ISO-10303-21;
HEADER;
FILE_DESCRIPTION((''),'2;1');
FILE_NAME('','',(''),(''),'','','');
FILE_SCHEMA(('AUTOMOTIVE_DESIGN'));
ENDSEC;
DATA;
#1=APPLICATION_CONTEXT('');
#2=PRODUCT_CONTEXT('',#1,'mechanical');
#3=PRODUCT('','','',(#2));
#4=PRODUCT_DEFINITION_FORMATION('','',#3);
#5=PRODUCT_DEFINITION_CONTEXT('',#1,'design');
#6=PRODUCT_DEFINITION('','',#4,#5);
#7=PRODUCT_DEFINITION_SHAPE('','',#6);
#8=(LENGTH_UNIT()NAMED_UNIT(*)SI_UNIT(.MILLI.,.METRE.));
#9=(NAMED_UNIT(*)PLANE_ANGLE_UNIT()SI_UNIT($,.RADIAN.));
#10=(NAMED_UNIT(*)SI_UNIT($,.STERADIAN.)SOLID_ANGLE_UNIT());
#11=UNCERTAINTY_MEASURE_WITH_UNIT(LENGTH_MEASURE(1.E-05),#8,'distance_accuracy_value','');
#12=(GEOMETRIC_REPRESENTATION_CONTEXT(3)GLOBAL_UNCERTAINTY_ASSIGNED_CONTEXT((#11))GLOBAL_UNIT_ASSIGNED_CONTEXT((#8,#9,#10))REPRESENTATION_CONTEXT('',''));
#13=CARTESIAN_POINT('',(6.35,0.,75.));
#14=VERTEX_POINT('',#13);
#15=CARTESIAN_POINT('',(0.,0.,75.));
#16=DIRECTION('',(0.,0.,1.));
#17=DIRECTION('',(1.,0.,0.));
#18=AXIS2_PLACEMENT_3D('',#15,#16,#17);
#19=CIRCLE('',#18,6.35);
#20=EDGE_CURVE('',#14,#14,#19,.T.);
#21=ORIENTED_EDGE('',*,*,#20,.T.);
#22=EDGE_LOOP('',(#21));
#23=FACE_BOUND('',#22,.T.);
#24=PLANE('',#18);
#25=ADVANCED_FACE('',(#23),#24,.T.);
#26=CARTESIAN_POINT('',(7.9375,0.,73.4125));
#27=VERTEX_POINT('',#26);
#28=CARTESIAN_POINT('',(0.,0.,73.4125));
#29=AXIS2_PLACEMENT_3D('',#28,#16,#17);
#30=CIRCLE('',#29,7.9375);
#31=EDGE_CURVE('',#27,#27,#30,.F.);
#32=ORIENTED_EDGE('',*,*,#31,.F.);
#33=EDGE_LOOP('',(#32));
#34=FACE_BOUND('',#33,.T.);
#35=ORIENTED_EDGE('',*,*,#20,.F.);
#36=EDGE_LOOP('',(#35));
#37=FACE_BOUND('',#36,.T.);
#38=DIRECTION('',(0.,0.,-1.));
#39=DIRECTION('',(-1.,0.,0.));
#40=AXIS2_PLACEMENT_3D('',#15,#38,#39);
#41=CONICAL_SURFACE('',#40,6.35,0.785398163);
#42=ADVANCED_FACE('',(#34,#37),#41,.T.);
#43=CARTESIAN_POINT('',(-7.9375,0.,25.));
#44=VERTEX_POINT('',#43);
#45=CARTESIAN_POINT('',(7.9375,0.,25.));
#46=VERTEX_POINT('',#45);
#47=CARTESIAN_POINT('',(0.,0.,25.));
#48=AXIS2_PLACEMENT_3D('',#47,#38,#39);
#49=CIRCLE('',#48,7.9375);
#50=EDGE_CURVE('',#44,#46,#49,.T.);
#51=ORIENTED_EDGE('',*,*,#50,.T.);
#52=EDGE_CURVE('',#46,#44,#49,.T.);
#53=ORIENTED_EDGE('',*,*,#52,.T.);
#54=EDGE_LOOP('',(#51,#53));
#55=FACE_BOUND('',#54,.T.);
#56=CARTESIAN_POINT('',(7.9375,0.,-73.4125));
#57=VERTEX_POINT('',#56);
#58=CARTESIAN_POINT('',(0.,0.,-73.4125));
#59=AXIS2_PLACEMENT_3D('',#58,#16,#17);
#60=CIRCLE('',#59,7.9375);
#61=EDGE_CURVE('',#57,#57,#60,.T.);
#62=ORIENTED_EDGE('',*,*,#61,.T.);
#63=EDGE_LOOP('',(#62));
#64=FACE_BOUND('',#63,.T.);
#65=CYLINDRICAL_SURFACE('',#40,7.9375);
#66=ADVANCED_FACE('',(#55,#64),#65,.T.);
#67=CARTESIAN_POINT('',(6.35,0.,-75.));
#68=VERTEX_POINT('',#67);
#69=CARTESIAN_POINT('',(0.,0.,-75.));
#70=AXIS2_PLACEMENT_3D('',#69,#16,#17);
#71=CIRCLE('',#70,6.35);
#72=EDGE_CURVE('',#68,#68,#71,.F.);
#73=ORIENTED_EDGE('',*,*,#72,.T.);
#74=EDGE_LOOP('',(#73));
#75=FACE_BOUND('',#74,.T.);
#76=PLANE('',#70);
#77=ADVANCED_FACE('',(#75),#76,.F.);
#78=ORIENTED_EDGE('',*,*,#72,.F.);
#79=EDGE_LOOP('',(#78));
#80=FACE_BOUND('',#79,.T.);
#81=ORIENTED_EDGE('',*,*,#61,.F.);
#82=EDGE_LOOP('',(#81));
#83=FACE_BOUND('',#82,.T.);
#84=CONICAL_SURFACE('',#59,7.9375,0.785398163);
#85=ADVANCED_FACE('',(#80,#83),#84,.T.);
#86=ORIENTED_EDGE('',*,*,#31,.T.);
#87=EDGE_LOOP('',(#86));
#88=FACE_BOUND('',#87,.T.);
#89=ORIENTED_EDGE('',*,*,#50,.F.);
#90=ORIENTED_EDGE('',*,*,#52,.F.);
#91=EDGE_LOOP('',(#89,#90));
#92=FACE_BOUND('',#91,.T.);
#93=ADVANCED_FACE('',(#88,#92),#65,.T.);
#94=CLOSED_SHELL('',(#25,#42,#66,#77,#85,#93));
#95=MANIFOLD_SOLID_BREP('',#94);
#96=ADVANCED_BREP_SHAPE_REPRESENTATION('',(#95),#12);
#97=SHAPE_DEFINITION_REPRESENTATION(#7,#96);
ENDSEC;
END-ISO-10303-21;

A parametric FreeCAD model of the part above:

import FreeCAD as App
import Part
import Sketcher
Q = App.Units.Quantity


def edges_at(feature, points):
    """Names of the edges that pass closest to the given points."""
    edges = feature.Shape.Edges
    near = lambda p: min(range(len(edges)), key=lambda i: edges[i].distToShape(Part.Vertex(*p))[0])
    return sorted({f"Edge{near(p) + 1}" for p in points})

doc = App.newDocument("Part")
body = doc.addObject("PartDesign::Body", "Body")

# Sketch on XY plane
sketch1 = body.newObject("Sketcher::SketchObject", "Sketch")
sketch1.AttachmentSupport = (doc.getObject("XY_Plane"), [""])
sketch1.MapMode = "FlatFace"
sketch1.addGeometry(Part.Circle(App.Vector(0, 0, 0), App.Vector(0, 0, 1), 7.9375), False)
sketch1.addConstraint([
    Sketcher.Constraint("Coincident", 0, 3, -1, 1),
    Sketcher.Constraint("Diameter", 0, Q("0.625 in")),
])
pad1 = body.newObject("PartDesign::Pad", "Pad")
pad1.Profile = sketch1
pad1.Length = 150
pad1.Midplane = True
doc.recompute()

chamfer = body.newObject("PartDesign::Chamfer", "Chamfer")
chamfer.Base = (pad1, edges_at(pad1, [(-7.938, 0, -75), (-7.938, 0, 75)]))
chamfer.Size = Q("0.0625 in")

doc.recompute()
